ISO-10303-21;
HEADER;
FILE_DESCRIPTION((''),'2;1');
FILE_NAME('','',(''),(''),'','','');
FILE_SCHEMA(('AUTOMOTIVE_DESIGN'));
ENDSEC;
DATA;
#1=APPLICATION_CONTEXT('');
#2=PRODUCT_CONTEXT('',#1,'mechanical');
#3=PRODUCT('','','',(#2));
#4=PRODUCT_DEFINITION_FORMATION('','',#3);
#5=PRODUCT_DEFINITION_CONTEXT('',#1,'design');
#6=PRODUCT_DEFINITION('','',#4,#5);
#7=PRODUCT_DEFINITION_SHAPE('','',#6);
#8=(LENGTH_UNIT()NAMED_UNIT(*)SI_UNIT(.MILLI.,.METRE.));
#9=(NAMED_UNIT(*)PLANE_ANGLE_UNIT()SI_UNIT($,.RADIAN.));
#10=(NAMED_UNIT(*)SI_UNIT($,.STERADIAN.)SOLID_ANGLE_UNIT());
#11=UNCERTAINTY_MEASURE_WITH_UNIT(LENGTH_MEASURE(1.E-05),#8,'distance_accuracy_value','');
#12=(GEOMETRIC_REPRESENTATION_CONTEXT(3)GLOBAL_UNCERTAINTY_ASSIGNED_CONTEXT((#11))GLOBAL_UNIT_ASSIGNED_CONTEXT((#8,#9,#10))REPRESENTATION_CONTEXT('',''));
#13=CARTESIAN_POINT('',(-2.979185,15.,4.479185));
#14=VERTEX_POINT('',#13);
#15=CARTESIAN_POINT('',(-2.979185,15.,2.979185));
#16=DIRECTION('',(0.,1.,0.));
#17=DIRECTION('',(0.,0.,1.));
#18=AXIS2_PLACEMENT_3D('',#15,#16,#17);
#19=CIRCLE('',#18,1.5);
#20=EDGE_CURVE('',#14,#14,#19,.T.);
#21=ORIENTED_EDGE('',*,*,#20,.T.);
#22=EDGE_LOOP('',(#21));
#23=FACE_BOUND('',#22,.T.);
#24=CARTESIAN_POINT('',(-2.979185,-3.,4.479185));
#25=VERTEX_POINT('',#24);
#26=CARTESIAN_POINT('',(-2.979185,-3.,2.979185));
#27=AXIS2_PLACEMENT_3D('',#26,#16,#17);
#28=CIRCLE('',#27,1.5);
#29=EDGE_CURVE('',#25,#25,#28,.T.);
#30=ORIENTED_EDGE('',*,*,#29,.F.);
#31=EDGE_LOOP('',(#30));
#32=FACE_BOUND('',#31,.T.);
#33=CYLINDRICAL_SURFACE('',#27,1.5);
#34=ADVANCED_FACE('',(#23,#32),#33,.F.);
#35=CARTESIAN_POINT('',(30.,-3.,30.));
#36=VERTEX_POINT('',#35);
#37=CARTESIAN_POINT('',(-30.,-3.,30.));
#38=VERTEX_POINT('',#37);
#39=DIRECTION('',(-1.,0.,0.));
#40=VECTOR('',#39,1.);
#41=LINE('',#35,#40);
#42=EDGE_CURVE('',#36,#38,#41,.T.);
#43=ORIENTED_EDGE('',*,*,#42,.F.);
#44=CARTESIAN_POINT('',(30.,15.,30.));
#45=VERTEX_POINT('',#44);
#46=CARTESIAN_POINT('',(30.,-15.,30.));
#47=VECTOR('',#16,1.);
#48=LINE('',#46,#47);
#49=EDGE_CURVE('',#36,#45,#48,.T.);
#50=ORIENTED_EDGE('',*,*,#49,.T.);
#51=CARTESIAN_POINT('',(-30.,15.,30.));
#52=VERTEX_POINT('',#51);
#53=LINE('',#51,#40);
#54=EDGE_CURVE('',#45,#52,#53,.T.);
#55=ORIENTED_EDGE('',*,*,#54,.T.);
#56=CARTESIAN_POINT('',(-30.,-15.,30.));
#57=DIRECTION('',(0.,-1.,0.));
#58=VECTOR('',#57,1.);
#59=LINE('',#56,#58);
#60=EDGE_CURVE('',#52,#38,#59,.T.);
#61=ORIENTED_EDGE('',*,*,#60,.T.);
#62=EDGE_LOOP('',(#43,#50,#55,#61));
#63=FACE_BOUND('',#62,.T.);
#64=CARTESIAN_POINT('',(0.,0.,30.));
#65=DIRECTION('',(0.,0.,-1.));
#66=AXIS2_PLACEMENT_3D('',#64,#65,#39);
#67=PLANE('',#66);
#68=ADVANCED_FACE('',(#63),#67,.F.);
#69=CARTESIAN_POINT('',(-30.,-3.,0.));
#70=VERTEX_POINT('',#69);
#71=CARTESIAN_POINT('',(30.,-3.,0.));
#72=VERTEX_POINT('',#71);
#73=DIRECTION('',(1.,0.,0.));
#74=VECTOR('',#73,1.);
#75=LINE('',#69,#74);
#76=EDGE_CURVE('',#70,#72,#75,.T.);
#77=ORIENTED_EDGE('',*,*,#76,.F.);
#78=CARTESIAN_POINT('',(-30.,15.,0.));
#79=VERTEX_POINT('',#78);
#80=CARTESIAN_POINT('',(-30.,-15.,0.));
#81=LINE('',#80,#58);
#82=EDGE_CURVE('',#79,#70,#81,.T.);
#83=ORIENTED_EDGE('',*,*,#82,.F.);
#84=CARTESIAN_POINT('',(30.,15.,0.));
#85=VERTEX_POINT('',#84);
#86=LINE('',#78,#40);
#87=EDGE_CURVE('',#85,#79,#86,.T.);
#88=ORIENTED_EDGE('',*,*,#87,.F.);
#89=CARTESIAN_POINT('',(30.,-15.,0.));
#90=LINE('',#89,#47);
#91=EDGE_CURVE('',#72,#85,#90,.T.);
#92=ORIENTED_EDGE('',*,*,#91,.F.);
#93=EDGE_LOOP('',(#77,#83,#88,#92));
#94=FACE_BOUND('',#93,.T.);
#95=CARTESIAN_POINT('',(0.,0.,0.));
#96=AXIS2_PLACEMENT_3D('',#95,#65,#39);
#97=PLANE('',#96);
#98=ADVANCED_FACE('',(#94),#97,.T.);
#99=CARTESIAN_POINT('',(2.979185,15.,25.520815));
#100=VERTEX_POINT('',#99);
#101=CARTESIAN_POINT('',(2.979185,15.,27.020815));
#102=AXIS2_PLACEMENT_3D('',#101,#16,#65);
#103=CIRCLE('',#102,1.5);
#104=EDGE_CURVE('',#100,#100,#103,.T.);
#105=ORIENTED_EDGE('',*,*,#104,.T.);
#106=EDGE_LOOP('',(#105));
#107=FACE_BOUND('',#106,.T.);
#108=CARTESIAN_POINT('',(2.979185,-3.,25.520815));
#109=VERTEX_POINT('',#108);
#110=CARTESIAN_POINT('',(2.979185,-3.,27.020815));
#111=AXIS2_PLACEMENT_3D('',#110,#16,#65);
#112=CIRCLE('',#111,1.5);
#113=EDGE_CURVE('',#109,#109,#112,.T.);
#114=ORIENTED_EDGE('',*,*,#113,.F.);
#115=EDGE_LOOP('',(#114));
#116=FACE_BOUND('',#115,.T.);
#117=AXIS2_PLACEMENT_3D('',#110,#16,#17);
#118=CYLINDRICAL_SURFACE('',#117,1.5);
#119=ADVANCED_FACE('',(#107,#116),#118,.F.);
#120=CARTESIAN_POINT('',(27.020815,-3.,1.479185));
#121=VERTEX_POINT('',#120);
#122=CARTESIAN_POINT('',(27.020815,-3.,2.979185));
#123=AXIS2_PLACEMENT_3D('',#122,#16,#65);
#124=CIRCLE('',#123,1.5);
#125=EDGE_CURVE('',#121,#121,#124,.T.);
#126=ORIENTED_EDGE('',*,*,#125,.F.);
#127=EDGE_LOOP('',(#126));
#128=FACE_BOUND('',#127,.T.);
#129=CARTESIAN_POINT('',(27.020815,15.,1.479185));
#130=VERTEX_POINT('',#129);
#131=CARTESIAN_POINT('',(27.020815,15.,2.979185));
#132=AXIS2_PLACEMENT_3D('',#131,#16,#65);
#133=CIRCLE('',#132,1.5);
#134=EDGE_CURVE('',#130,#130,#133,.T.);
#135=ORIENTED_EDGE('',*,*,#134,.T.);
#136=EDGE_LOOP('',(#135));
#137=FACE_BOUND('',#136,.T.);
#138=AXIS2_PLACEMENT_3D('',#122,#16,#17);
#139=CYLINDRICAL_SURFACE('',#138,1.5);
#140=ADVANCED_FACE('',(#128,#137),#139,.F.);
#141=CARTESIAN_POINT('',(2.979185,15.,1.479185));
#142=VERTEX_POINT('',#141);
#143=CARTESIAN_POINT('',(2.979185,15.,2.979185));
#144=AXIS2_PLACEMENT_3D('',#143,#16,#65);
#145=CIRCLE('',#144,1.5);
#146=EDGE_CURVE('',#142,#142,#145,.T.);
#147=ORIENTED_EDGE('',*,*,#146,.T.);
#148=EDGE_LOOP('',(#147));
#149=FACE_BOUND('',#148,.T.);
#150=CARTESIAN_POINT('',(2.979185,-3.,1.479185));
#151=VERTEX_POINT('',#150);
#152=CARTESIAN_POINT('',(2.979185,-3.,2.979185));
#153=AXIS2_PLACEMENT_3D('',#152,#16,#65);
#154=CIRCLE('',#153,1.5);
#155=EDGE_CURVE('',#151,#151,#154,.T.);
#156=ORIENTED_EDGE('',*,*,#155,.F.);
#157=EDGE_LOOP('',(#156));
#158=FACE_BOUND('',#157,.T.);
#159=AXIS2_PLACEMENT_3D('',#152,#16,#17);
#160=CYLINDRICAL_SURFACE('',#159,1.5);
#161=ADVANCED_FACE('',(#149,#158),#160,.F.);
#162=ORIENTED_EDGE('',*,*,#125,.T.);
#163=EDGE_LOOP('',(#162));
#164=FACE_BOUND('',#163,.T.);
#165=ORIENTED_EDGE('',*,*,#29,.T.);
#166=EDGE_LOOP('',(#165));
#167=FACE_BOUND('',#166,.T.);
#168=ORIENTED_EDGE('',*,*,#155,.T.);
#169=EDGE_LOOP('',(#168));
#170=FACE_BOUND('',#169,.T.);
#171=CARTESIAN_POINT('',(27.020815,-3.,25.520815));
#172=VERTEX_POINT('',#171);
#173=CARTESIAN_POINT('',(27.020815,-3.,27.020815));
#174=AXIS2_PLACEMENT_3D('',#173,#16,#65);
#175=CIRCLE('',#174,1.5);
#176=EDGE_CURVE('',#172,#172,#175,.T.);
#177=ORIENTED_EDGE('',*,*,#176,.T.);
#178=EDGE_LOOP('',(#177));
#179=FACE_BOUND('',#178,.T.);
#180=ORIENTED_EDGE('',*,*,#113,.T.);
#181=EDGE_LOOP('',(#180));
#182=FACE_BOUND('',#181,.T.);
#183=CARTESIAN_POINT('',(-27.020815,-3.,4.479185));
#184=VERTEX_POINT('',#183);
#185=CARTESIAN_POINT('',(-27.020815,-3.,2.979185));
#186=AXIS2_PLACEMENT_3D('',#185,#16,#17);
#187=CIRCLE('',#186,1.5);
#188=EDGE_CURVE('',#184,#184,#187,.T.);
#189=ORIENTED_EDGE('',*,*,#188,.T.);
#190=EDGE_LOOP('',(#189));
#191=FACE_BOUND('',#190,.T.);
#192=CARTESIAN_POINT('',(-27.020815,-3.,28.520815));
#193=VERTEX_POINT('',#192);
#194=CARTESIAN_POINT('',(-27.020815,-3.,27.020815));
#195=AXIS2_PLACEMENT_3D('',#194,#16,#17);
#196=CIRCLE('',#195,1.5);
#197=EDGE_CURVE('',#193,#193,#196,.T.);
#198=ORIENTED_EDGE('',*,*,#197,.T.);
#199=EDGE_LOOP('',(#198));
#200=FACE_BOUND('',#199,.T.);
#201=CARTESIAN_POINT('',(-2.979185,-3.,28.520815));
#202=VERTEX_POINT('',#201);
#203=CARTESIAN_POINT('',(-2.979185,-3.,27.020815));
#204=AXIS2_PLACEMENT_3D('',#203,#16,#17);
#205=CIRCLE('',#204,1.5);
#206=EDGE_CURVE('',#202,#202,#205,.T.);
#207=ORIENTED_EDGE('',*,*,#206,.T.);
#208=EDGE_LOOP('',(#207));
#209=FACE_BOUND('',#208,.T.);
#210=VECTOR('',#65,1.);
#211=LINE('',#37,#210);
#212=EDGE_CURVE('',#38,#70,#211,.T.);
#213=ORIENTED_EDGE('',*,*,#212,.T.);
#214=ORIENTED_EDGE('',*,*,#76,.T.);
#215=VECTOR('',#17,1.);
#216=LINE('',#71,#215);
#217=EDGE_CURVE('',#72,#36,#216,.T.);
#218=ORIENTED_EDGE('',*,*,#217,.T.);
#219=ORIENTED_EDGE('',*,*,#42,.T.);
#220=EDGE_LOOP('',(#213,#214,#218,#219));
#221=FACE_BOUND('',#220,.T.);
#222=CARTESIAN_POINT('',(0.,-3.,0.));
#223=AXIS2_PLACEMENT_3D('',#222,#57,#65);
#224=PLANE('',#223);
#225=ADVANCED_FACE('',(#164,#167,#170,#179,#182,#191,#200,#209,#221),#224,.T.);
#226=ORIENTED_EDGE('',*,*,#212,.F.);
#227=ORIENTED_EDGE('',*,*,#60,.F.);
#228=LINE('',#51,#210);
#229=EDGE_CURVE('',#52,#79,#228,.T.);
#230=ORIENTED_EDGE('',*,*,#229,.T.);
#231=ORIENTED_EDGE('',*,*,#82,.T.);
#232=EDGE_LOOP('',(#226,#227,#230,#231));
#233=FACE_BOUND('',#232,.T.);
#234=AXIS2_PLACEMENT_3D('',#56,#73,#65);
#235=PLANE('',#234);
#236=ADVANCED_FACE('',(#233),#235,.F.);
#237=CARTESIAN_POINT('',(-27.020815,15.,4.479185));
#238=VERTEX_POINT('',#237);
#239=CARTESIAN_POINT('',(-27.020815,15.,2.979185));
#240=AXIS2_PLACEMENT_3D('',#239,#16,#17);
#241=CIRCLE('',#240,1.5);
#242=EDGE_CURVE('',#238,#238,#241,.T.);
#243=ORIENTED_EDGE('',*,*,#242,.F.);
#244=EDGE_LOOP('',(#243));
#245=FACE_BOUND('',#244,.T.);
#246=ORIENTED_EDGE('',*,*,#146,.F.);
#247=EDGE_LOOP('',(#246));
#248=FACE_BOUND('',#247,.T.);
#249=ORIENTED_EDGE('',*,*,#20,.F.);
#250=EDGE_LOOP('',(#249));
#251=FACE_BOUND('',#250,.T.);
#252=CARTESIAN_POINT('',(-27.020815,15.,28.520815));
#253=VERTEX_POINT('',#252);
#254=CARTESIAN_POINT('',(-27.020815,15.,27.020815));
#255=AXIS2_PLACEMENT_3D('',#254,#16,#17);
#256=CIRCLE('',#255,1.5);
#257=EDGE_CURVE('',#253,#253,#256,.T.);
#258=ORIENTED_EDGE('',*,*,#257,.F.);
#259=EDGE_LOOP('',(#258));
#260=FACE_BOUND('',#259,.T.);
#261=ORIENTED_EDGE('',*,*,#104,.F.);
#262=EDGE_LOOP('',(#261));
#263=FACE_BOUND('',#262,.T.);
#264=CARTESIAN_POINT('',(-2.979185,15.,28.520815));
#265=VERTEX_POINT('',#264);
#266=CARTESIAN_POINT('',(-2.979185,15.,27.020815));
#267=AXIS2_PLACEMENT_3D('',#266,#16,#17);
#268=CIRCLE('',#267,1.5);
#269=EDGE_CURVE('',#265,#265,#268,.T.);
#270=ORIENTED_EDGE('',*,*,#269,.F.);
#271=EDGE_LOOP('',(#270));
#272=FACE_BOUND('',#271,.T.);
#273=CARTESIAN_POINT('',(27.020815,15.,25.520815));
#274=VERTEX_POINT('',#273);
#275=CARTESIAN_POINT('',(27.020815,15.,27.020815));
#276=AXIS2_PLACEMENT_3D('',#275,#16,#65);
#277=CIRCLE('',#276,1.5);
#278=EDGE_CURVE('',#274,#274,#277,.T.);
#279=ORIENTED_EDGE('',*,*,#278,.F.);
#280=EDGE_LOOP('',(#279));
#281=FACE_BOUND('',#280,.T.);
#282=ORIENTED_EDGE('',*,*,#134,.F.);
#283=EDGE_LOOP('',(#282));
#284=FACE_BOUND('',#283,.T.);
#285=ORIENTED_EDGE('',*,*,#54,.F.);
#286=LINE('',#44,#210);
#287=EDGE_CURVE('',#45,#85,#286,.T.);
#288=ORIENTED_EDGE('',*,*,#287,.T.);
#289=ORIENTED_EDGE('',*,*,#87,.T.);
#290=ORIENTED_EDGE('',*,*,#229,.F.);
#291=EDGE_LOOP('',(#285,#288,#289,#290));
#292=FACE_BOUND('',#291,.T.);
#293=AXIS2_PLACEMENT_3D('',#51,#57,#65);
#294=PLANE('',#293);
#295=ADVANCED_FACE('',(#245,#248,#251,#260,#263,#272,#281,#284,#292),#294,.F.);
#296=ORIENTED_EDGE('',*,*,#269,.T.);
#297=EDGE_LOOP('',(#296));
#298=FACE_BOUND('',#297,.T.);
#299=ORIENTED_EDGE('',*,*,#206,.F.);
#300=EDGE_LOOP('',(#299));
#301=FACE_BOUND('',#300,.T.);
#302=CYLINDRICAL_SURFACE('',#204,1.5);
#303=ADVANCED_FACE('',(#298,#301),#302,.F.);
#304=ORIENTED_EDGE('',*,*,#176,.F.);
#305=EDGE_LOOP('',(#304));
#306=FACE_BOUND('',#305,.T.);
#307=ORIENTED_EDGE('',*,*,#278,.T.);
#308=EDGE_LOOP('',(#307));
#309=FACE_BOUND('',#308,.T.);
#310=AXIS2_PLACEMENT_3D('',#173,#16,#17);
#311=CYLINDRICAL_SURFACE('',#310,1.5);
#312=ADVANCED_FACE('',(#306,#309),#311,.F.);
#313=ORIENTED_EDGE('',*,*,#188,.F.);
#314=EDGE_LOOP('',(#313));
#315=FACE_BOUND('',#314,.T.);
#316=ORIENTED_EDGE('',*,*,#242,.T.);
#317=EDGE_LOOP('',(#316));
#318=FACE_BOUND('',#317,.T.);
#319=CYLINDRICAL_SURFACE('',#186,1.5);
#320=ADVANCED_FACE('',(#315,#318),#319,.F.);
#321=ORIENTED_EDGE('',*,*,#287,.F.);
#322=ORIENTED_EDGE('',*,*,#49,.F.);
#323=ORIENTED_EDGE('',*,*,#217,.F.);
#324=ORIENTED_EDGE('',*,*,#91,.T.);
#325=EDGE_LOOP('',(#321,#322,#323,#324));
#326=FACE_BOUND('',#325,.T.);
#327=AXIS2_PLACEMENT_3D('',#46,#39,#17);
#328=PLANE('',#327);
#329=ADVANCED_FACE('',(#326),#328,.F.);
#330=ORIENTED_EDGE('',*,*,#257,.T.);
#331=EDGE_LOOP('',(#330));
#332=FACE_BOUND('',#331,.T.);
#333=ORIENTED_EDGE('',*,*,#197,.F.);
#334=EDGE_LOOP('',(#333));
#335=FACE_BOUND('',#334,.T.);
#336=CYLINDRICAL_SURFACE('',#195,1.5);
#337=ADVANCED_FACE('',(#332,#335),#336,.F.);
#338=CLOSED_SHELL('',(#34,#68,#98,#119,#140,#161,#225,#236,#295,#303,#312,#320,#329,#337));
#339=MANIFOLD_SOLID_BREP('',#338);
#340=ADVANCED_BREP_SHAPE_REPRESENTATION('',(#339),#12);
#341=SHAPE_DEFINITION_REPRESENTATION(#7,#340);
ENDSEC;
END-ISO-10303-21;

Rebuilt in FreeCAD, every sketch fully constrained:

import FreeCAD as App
import Part
import Sketcher
Q = App.Units.Quantity

doc = App.newDocument("Part")
body = doc.addObject("PartDesign::Body", "Body")

# Sketch on XY plane
sketch1 = body.newObject("Sketcher::SketchObject", "Sketch")
sketch1.AttachmentSupport = (doc.getObject("XY_Plane"), [""])
sketch1.MapMode = "FlatFace"
sketch1.addGeometry([
    Part.LineSegment(App.Vector(-30, 15, 0), App.Vector(-30, -15, 0)),
    Part.LineSegment(App.Vector(-30, -15, 0), App.Vector(30, -15, 0)),
    Part.LineSegment(App.Vector(30, -15, 0), App.Vector(30, 15, 0)),
    Part.LineSegment(App.Vector(30, 15, 0), App.Vector(-30, 15, 0)),
], False)
sketch1.addConstraint([
    Sketcher.Constraint("Coincident", 0, 2, 1, 1),
    Sketcher.Constraint("Coincident", 1, 2, 2, 1),
    Sketcher.Constraint("Coincident", 2, 2, 3, 1),
    Sketcher.Constraint("Coincident", 3, 2, 0, 1),
    Sketcher.Constraint("Vertical", 0),
    Sketcher.Constraint("Horizontal", 1),
    Sketcher.Constraint("Vertical", 2),
    Sketcher.Constraint("Horizontal", 3),
    Sketcher.Constraint("Symmetric", 0, 2, 2, 2, -1, 1),
    Sketcher.Constraint("DistanceX", 1, 1, 1, 2, Q("60 mm")),
    Sketcher.Constraint("DistanceY", 0, 2, 0, 1, Q("30 mm")),
])
pad1 = body.newObject("PartDesign::Pad", "Pad")
pad1.Profile = sketch1
pad1.Length = 30

# Sketch on XZ plane
sketch2 = body.newObject("Sketcher::SketchObject", "Sketch001")
sketch2.AttachmentSupport = (doc.getObject("XZ_Plane"), [""])
sketch2.MapMode = "FlatFace"
sketch2.AttachmentOffset = App.Placement(App.Vector(0, 0, 15), App.Rotation())
sketch2.addGeometry([
    Part.LineSegment(App.Vector(-30, 30, 0), App.Vector(-30, 0, 0)),
    Part.LineSegment(App.Vector(-30, 0, 0), App.Vector(30, 0, 0)),
    Part.LineSegment(App.Vector(30, 0, 0), App.Vector(30, 30, 0)),
    Part.LineSegment(App.Vector(30, 30, 0), App.Vector(-30, 30, 0)),
], False)
sketch2.addConstraint([
    Sketcher.Constraint("Coincident", 0, 2, 1, 1),
    Sketcher.Constraint("Coincident", 1, 2, 2, 1),
    Sketcher.Constraint("Coincident", 2, 2, 3, 1),
    Sketcher.Constraint("Coincident", 3, 2, 0, 1),
    Sketcher.Constraint("Vertical", 0),
    Sketcher.Constraint("Horizontal", 1),
    Sketcher.Constraint("Vertical", 2),
    Sketcher.Constraint("Horizontal", 3),
    Sketcher.Constraint("Symmetric", 0, 2, 1, 2, -1, 1),
    Sketcher.Constraint("DistanceX", 1, 1, 1, 2, Q("60 mm")),
    Sketcher.Constraint("DistanceY", 0, 2, 0, 1, Q("30 mm")),
])
pocket1 = body.newObject("PartDesign::Pocket", "Pocket")
pocket1.Profile = sketch2
pocket1.Length = 12

# Sketch on XZ plane
sketch3 = body.newObject("Sketcher::SketchObject", "Sketch002")
sketch3.AttachmentSupport = (doc.getObject("XZ_Plane"), [""])
sketch3.MapMode = "FlatFace"
sketch3.AttachmentOffset = App.Placement(App.Vector(0, 0, -15), App.Rotation())
sketch3.addGeometry([
    Part.Circle(App.Vector(-27, 3, 0), App.Vector(0, 0, 1), 1.5),  # 0
    Part.Circle(App.Vector(-3, 3, 0), App.Vector(0, 0, 1), 1.5),  # 1
    Part.Circle(App.Vector(-3, 27, 0), App.Vector(0, 0, 1), 1.5),  # 2
    Part.Circle(App.Vector(-27, 27, 0), App.Vector(0, 0, 1), 1.5),  # 3
    Part.Circle(App.Vector(27, 27, 0), App.Vector(0, 0, 1), 1.5),  # 4
    Part.Circle(App.Vector(3, 27, 0), App.Vector(0, 0, 1), 1.5),  # 5
    Part.Circle(App.Vector(3, 3, 0), App.Vector(0, 0, 1), 1.5),  # 6
    Part.Circle(App.Vector(27, 3, 0), App.Vector(0, 0, 1), 1.5),  # 7
], False)
sketch3.addConstraint([
    Sketcher.Constraint("Equal", 0, 1),
    Sketcher.Constraint("Equal", 1, 2),
    Sketcher.Constraint("Equal", 2, 3),
    Sketcher.Constraint("Equal", 3, 4),
    Sketcher.Constraint("Equal", 4, 5),
    Sketcher.Constraint("Equal", 5, 6),
    Sketcher.Constraint("Equal", 6, 7),
    Sketcher.Constraint("Symmetric", 3, 3, 4, 3, -2),
    Sketcher.Constraint("Symmetric", 2, 3, 5, 3, -2),
    Sketcher.Constraint("Symmetric", 1, 3, 6, 3, -2),
    Sketcher.Constraint("Symmetric", 0, 3, 7, 3, -2),
    Sketcher.Constraint("Horizontal", 0, 3, 1, 3),
    Sketcher.Constraint("Horizontal", 2, 3, 3, 3),
    Sketcher.Constraint("Vertical", 1, 3, 2, 3),
    Sketcher.Constraint("Vertical", 0, 3, 3, 3),
    Sketcher.Constraint("Diameter", 0, Q("3 mm")),
    Sketcher.Constraint("DistanceX", 2, 3, 4, 3, Q("30 mm")),
    Sketcher.Constraint("DistanceX", 0, 3, 1, 3, Q("24.041631 mm")),
    Sketcher.Constraint("DistanceY", 1, 3, 2, 3, Q("24.041631 mm")),
    Sketcher.Constraint("DistanceY", -1, 1, 0, 3, Q("2.979185 mm")),
])
pocket2 = body.newObject("PartDesign::Pocket", "Pocket001")
pocket2.Profile = sketch3
pocket2.Type = "ThroughAll"
pocket2.Reversed = True

doc.recompute()
